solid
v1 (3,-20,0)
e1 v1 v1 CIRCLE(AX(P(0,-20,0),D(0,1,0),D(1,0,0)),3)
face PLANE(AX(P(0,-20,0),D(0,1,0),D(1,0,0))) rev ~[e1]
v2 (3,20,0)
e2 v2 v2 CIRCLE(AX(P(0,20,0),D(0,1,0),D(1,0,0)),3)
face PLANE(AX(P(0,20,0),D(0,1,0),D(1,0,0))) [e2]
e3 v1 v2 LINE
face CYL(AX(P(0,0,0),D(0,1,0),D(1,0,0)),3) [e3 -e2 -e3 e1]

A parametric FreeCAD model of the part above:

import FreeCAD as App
import Part
import Sketcher
from FreeCAD import Vector
Q = App.Units.Quantity

doc = App.newDocument("Part")
body = doc.addObject("PartDesign::Body", "Body")

# Sketch on XZ plane
sketch1 = body.newObject("Sketcher::SketchObject", "Sketch")
sketch1.AttachmentSupport = (doc.getObject("XZ_Plane"), [""])
sketch1.MapMode = "FlatFace"
sketch1.addGeometry(Part.Circle(Vector(0, 0, 0), Vector(0, 0, 1), 3), False)
sketch1.addConstraint([
    Sketcher.Constraint("Coincident", 0, 3, -1, 1),
    Sketcher.Constraint("Diameter", 0, Q("6 mm")),
])
pad1 = body.newObject("PartDesign::Pad", "Pad")
pad1.Profile = sketch1
pad1.Length = 40
pad1.Midplane = True

doc.recompute()
